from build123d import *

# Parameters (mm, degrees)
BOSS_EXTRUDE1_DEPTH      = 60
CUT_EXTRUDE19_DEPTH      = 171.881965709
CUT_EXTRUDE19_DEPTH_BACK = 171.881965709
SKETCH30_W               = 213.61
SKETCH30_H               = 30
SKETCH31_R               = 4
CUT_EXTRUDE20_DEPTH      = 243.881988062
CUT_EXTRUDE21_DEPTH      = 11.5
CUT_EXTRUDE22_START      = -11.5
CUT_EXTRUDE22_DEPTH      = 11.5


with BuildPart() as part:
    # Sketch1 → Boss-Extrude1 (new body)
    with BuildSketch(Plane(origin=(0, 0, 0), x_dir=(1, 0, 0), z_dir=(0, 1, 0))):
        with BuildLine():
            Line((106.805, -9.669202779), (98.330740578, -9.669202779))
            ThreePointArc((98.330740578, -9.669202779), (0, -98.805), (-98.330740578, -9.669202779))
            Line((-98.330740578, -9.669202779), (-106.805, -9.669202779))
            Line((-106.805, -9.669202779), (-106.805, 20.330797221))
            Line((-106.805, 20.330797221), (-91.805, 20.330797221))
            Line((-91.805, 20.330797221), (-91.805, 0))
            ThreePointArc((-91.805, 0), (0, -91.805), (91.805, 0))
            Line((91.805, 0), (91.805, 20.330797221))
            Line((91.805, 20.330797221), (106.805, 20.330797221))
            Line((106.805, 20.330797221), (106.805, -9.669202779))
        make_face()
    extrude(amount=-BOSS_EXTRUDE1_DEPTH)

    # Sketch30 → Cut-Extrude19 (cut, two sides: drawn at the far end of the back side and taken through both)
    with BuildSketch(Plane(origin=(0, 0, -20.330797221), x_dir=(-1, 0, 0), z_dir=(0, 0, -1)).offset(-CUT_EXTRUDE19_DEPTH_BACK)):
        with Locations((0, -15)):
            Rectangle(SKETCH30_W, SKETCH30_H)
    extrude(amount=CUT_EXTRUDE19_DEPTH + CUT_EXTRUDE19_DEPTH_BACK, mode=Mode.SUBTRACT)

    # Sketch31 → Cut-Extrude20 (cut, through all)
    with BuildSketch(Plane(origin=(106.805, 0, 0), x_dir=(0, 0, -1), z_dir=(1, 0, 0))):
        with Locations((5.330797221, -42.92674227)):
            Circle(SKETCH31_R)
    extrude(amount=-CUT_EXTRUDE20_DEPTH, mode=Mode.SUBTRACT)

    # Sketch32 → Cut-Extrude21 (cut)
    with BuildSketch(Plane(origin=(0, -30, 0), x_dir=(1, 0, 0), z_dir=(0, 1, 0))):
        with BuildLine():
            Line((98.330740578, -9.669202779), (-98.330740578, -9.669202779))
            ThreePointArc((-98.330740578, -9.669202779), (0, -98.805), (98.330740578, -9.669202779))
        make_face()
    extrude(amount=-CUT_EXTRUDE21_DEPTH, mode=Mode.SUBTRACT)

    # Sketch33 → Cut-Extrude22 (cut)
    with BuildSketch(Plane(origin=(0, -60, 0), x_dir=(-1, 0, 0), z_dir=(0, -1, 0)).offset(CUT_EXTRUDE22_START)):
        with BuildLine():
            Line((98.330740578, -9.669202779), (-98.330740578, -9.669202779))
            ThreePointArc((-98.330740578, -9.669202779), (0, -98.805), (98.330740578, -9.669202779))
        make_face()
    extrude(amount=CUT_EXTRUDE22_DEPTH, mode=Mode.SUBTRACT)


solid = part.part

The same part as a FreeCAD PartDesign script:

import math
import FreeCAD as App
import Part
import Sketcher
from FreeCAD import Vector
Q = App.Units.Quantity


def add_polygon(sketch, points):
    """Adds a closed chain of lines whose ends are joined by coincident constraints."""
    first, n = sketch.GeometryCount, len(points)
    for a, b in zip(points, points[1:] + points[:1]):
        sketch.addGeometry(Part.LineSegment(App.Vector(*a, 0), App.Vector(*b, 0)), False)
    for i in range(n):
        sketch.addConstraint(Sketcher.Constraint("Coincident", first + i, 2, first + (i + 1) % n, 1))

doc = App.newDocument("Part")
params = doc.addObject("Spreadsheet::Sheet", "Params")
for row, (alias, value) in enumerate([
    ("sketch1_width", "15 mm"),
    ("sketch1_height", "30 mm"),
    ("pad1_length", "60 mm"),
    ("sketch2_height", "30 mm"),
    ("sketch2_width", "213.61 mm"),
    ("sketch3_diameter", "8 mm"),
    ("pocket3_length", "11.5 mm"),
    ("pocket4_length", "11.5 mm"),
], start=1):
    params.set(f"A{row}", alias)
    params.set(f"B{row}", "=" + value)
    params.setAlias(f"B{row}", alias)

body = doc.addObject("PartDesign::Body", "Body")

# Sketch on XZ plane
sketch1 = body.newObject("Sketcher::SketchObject", "Sketch")
sketch1.AttachmentSupport = (doc.getObject("XZ_Plane"), [""])
sketch1.MapMode = "FlatFace"
sketch1.addGeometry([
    Part.LineSegment(Vector(98, 10, 0), Vector(107, 10, 0)),  # 0
    Part.LineSegment(Vector(107, 10, 0), Vector(107, -20, 0)),  # 1
    Part.LineSegment(Vector(107, -20, 0), Vector(92, -20, 0)),  # 2
    Part.LineSegment(Vector(92, -20, 0), Vector(92, 0, 0)),  # 3
    Part.ArcOfCircle(Part.Circle(Vector(0, 0, 0), Vector(0, 0, 1), 92), math.radians(0), math.radians(180)),  # 4
    Part.LineSegment(Vector(-92, 0, 0), Vector(-92, -20, 0)),  # 5
    Part.LineSegment(Vector(-92, -20, 0), Vector(-107, -20, 0)),  # 6
    Part.LineSegment(Vector(-107, -20, 0), Vector(-107, 10, 0)),  # 7
    Part.LineSegment(Vector(-107, 10, 0), Vector(-98, 10, 0)),  # 8
    Part.ArcOfCircle(Part.Circle(Vector(0, 0, 0), Vector(0, 0, 1), 99), math.radians(6), math.radians(174)),  # 9
], False)
sketch1.addConstraint([
    Sketcher.Constraint("Coincident", 0, 2, 1, 1),
    Sketcher.Constraint("Coincident", 1, 2, 2, 1),
    Sketcher.Constraint("Coincident", 2, 2, 3, 1),
    Sketcher.Constraint("Tangent", 3, 2, 4, 1),
    Sketcher.Constraint("Tangent", 4, 2, 5, 1),
    Sketcher.Constraint("Coincident", 5, 2, 6, 1),
    Sketcher.Constraint("Coincident", 6, 2, 7, 1),
    Sketcher.Constraint("Coincident", 7, 2, 8, 1),
    Sketcher.Constraint("Coincident", 8, 2, 9, 2),
    Sketcher.Constraint("Coincident", 9, 1, 0, 1),
    Sketcher.Constraint("Horizontal", 0),
    Sketcher.Constraint("Vertical", 1),
    Sketcher.Constraint("Horizontal", 2),
    Sketcher.Constraint("Vertical", 3),
    Sketcher.Constraint("Vertical", 5),
    Sketcher.Constraint("Horizontal", 6),
    Sketcher.Constraint("Vertical", 7),
    Sketcher.Constraint("Horizontal", 8),
    Sketcher.Constraint("Coincident", 4, 3, -1, 1),
    Sketcher.Constraint("Coincident", 9, 3, -1, 1),
    Sketcher.Constraint("Symmetric", 1, 2, 6, 2, -2),
    Sketcher.Constraint("Horizontal", 0, 2, 7, 2),
    Sketcher.Constraint("DistanceX", 2, 2, 2, 1, Q("15 mm")),
    Sketcher.Constraint("DistanceY", 1, 2, 1, 1, Q("30 mm")),
    Sketcher.Constraint("Radius", 4, Q("91.805 mm")),
    Sketcher.Constraint("Radius", 9, Q("98.805 mm")),
    Sketcher.Constraint("DistanceX", 0, 1, 0, 2, Q("8.474259 mm")),
])
sketch1.setExpression("Constraints[22]", "Params.sketch1_width")
sketch1.setExpression("Constraints[23]", "Params.sketch1_height")
pad1 = body.newObject("PartDesign::Pad", "Pad")
pad1.Profile = sketch1
pad1.setExpression("Length", "Params.pad1_length")

# Sketch on XY plane
sketch2 = body.newObject("Sketcher::SketchObject", "Sketch001")
sketch2.AttachmentSupport = (doc.getObject("XY_Plane"), [""])
sketch2.MapMode = "FlatFace"
sketch2.AttachmentOffset = App.Placement(Vector(0, 0, -20.330797), App.Rotation())
add_polygon(sketch2, [(107, 0), (107, -30), (-107, -30), (-107, 0)])  # lines 0-3
sketch2.addConstraint([
    Sketcher.Constraint("Vertical", 0),
    Sketcher.Constraint("Horizontal", 1),
    Sketcher.Constraint("Vertical", 2),
    Sketcher.Constraint("Horizontal", 3),
    Sketcher.Constraint("Symmetric", 2, 2, 3, 2, -1, 1),
    Sketcher.Constraint("DistanceY", 0, 2, 0, 1, Q("30 mm")),
    Sketcher.Constraint("DistanceX", 1, 2, 1, 1, Q("213.61 mm")),
])
sketch2.setExpression("Constraints[9]", "Params.sketch2_height")
sketch2.setExpression("Constraints[10]", "Params.sketch2_width")
pocket1 = body.newObject("PartDesign::Pocket", "Pocket")
pocket1.Profile = sketch2
pocket1.Type = "ThroughAll"
pocket1.Midplane = True

# Sketch on YZ plane
sketch3 = body.newObject("Sketcher::SketchObject", "Sketch002")
sketch3.AttachmentSupport = (doc.getObject("YZ_Plane"), [""])
sketch3.MapMode = "FlatFace"
sketch3.AttachmentOffset = App.Placement(Vector(0, 0, 106.805), App.Rotation())
sketch3.addGeometry(Part.Circle(Vector(-42.9, -5.3, 0), Vector(0, 0, 1), 4), False)
sketch3.addConstraint([
    Sketcher.Constraint("Diameter", 0, Q("8 mm")),
    Sketcher.Constraint("DistanceX", 0, 3, -1, 1, Q("42.926742 mm")),
    Sketcher.Constraint("DistanceY", 0, 3, -1, 1, Q("5.330797 mm")),
])
sketch3.setExpression("Constraints[0]", "Params.sketch3_diameter")
pocket2 = body.newObject("PartDesign::Pocket", "Pocket001")
pocket2.Profile = sketch3
pocket2.Type = "ThroughAll"

# Sketch on XZ plane
sketch4 = body.newObject("Sketcher::SketchObject", "Sketch003")
sketch4.AttachmentSupport = (doc.getObject("XZ_Plane"), [""])
sketch4.MapMode = "FlatFace"
sketch4.AttachmentOffset = App.Placement(Vector(0, 0, 30), App.Rotation())
sketch4.addGeometry([
    Part.LineSegment(Vector(98, 10, 0), Vector(-98, 10, 0)),
    Part.ArcOfCircle(Part.Circle(Vector(0, 0, 0), Vector(0, 0, 1), 99), math.radians(6), math.radians(174)),
], False)
sketch4.addConstraint([
    Sketcher.Constraint("Coincident", 0, 1, 1, 1),
    Sketcher.Constraint("Coincident", 1, 2, 0, 2),
    Sketcher.Constraint("Horizontal", 0),
    Sketcher.Constraint("Coincident", 1, 3, -1, 1),
    Sketcher.Constraint("Radius", 1, Q("98.805 mm")),
    Sketcher.Constraint("DistanceX", 0, 2, 0, 1, Q("196.661481 mm")),
])
pocket3 = body.newObject("PartDesign::Pocket", "Pocket002")
pocket3.Profile = sketch4
pocket3.setExpression("Length", "Params.pocket3_length")
pocket3.Reversed = True

# Sketch on XZ plane
sketch5 = body.newObject("Sketcher::SketchObject", "Sketch004")
sketch5.AttachmentSupport = (doc.getObject("XZ_Plane"), [""])
sketch5.MapMode = "FlatFace"
sketch5.AttachmentOffset = App.Placement(Vector(0, 0, 48.5), App.Rotation())
sketch5.addGeometry([
    Part.LineSegment(Vector(-98, 10, 0), Vector(98, 10, 0)),
    Part.ArcOfCircle(Part.Circle(Vector(0, 0, 0), Vector(0, 0, 1), 99), math.radians(6), math.radians(174)),
], False)
sketch5.addConstraint([
    Sketcher.Constraint("Coincident", 0, 1, 1, 2),
    Sketcher.Constraint("Coincident", 1, 1, 0, 2),
    Sketcher.Constraint("Horizontal", 0),
    Sketcher.Constraint("Coincident", 1, 3, -1, 1),
    Sketcher.Constraint("Radius", 1, Q("98.805 mm")),
    Sketcher.Constraint("DistanceX", 0, 1, 0, 2, Q("196.661481 mm")),
])
pocket4 = body.newObject("PartDesign::Pocket", "Pocket003")
pocket4.Profile = sketch5
pocket4.setExpression("Length", "Params.pocket4_length")
pocket4.Reversed = True

doc.recompute()
